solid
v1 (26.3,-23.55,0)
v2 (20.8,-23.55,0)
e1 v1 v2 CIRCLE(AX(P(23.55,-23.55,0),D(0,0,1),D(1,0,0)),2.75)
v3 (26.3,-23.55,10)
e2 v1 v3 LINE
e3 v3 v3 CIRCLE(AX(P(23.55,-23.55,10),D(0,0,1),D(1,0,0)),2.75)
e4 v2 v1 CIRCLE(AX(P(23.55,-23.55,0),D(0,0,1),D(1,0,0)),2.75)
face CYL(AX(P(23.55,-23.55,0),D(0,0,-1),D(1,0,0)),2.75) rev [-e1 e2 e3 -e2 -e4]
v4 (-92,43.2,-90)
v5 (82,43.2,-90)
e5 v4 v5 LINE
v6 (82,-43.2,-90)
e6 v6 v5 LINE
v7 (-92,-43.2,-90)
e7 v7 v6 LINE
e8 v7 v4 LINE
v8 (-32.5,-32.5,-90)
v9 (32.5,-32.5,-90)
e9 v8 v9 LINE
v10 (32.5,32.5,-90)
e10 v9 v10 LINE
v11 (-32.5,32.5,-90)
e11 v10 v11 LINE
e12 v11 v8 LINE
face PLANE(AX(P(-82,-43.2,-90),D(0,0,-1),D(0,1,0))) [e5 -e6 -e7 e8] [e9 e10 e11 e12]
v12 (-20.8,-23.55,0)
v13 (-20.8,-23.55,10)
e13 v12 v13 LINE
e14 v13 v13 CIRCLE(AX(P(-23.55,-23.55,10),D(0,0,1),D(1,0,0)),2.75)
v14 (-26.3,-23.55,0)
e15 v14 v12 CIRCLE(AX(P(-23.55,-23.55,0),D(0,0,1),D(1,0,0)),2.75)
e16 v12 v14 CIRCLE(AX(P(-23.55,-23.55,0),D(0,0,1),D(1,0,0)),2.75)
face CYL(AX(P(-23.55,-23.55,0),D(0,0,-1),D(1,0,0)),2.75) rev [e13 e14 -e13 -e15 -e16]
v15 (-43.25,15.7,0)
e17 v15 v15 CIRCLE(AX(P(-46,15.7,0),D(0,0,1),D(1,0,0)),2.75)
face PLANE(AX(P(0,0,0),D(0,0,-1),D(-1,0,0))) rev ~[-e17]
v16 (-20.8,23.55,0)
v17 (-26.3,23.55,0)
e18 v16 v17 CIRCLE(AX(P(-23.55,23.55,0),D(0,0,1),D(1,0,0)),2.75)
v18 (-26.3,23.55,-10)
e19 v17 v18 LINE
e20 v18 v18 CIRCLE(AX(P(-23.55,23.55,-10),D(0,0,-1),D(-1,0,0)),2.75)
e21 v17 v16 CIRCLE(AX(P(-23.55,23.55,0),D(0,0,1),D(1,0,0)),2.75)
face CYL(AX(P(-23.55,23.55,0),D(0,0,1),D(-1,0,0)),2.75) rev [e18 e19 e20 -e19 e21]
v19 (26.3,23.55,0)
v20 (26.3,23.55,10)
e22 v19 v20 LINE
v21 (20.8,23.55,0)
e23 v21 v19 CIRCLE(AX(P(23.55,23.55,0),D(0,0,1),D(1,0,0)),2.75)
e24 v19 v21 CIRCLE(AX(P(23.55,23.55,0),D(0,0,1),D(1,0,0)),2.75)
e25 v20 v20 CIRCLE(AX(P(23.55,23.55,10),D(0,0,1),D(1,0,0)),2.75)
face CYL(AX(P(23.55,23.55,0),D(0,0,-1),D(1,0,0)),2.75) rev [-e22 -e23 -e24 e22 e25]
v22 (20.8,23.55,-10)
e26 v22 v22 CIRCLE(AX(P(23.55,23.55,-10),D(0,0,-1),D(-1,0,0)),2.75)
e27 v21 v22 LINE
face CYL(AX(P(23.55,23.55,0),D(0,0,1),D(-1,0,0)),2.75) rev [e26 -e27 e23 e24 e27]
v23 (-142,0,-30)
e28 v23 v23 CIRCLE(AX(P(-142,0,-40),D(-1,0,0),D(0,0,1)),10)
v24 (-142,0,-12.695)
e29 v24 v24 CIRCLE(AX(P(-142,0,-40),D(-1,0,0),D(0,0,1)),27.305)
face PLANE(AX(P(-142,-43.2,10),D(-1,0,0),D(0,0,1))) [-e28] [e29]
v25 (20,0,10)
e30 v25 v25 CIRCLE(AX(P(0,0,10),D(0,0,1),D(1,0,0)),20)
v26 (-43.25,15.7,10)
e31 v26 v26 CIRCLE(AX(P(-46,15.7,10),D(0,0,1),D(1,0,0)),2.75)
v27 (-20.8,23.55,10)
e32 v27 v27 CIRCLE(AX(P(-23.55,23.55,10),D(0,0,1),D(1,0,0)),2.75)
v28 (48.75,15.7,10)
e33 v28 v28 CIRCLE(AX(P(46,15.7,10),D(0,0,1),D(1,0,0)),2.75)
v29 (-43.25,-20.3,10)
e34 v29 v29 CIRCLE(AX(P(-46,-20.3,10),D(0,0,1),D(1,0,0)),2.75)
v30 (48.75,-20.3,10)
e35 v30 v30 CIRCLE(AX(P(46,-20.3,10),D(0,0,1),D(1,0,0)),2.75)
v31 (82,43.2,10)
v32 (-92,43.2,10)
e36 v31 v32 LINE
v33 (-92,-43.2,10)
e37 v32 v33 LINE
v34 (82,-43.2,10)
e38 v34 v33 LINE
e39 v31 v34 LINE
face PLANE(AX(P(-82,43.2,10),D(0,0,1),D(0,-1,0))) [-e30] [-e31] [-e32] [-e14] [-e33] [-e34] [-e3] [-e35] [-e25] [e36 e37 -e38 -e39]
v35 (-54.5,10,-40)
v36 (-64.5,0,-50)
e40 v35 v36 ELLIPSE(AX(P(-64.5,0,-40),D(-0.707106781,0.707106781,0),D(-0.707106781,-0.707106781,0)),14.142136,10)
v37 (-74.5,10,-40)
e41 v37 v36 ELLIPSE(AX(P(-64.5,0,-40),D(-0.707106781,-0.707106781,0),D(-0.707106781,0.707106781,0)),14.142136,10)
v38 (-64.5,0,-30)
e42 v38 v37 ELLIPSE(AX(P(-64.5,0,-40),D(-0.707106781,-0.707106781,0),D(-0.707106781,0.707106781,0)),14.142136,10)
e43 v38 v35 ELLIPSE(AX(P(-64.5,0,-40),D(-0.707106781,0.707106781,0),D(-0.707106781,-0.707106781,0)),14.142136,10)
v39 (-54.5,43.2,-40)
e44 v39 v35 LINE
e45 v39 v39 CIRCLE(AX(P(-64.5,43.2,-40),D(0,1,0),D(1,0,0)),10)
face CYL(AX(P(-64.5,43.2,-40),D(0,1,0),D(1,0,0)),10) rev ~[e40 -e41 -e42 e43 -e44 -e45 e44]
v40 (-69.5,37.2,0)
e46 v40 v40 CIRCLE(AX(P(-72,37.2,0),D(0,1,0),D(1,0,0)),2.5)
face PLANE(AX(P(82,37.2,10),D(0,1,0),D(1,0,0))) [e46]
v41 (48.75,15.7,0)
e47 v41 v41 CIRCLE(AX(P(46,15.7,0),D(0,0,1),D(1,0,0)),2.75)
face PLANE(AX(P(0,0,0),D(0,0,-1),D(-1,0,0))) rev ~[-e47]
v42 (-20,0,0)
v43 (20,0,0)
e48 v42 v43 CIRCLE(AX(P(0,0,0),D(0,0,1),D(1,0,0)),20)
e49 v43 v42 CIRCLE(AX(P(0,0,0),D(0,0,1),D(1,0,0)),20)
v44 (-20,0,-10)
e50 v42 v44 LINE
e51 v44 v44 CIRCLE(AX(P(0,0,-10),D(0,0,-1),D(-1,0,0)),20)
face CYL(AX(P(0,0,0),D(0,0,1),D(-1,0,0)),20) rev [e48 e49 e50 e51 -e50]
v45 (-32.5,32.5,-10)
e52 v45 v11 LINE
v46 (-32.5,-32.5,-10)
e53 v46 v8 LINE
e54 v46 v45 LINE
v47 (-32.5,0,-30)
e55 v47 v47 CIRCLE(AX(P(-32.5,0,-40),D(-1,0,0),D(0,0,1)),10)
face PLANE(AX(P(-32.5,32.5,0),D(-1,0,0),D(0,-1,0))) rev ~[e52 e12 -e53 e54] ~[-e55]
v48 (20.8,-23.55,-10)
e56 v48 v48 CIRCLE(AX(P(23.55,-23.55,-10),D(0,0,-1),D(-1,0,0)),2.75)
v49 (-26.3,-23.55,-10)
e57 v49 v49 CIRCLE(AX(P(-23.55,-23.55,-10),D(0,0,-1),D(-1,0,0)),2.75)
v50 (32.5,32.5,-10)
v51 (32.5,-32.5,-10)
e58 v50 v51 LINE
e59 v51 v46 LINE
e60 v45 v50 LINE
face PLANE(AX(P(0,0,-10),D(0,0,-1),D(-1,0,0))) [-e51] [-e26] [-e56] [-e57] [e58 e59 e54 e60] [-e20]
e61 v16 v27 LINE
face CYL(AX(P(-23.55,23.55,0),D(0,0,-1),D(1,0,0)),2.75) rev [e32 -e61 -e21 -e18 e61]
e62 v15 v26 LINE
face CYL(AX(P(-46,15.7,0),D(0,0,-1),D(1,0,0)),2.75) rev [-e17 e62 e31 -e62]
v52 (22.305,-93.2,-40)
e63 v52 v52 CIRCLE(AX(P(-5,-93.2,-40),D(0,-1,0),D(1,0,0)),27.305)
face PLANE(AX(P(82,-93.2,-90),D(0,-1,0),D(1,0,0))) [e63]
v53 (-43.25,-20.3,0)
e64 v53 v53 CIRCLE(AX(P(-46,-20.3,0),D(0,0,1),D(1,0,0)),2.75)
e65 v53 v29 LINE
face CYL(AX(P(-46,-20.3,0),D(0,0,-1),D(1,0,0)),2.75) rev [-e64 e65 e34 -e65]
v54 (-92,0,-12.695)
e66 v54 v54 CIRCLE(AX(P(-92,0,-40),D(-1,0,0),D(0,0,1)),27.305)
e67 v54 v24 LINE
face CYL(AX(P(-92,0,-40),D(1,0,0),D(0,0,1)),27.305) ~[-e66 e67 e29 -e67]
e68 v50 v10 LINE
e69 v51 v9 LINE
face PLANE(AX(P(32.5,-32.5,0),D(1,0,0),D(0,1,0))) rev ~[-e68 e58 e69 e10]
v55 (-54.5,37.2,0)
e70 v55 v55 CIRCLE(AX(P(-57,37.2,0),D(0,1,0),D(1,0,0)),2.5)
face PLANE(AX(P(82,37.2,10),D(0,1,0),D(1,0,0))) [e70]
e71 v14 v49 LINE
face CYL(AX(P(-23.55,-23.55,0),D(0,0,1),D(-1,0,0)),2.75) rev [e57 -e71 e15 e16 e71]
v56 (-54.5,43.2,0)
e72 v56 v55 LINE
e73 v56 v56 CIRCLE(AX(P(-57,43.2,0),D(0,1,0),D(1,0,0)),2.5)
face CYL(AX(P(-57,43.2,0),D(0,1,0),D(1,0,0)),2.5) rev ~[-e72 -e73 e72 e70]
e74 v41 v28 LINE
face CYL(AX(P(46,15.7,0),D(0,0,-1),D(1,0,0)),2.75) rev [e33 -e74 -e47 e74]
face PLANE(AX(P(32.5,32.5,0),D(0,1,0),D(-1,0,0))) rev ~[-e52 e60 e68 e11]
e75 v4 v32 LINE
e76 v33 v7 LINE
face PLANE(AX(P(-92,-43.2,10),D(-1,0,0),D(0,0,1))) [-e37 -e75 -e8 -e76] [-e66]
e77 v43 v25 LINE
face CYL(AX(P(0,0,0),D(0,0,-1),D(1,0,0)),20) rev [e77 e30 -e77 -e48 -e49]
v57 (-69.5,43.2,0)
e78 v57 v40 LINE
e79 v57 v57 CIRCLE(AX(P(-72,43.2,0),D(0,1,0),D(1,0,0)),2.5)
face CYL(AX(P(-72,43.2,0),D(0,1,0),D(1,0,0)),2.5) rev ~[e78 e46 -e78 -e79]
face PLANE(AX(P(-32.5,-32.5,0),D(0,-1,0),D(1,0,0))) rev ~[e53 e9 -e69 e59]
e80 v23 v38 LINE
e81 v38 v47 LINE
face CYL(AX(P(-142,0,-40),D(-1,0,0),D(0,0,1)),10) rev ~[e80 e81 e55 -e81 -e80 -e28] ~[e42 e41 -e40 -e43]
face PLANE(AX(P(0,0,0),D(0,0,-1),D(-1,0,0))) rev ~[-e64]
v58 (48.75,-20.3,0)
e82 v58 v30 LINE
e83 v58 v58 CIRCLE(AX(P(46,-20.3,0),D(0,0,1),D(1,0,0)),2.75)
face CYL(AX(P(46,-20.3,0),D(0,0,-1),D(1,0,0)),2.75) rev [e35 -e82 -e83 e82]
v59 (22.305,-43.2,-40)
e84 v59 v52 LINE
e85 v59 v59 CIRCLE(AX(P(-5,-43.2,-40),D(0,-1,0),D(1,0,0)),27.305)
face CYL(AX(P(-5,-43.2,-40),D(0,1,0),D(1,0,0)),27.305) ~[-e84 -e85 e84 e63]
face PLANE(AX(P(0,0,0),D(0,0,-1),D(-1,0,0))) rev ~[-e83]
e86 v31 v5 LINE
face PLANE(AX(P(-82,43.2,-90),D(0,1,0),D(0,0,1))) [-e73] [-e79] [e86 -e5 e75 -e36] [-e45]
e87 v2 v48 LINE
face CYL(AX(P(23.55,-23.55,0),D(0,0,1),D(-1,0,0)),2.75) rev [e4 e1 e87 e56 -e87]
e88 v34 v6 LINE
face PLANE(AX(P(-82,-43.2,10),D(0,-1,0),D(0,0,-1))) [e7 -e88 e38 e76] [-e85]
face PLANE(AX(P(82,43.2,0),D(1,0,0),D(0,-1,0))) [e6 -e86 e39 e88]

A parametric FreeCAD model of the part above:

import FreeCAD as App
import Part
import Sketcher
from FreeCAD import Vector

doc = App.newDocument("Part")
body = doc.addObject("PartDesign::Body", "Body")

# Sketch on XY plane
sketch1 = doc.addObject("Sketcher::SketchObject", "Sketch")
body.addObject(sketch1)
sketch1.AttachmentSupport = (doc.XY_Plane, [""])
sketch1.MapMode = "FlatFace"
sketch1.addGeometry(Part.LineSegment(Vector(82, 43.2, 0), Vector(-82, 43.2, 0)), False)
sketch1.addGeometry(Part.LineSegment(Vector(-82, 43.2, 0), Vector(-82, -43.2, 0)), False)
sketch1.addGeometry(Part.LineSegment(Vector(-82, -43.2, 0), Vector(82, -43.2, 0)), False)
sketch1.addGeometry(Part.LineSegment(Vector(82, -43.2, 0), Vector(82, 43.2, 0)), False)
sketch1.addGeometry(Part.Circle(Vector(-23.6, -23.6, 0), Vector(0, 0, 1), 2.8), False)
sketch1.addGeometry(Part.Circle(Vector(-46, -20.3, 0), Vector(0, 0, 1), 2.8), False)
sketch1.addGeometry(Part.Circle(Vector(23.6, -23.6, 0), Vector(0, 0, 1), 2.8), False)
sketch1.addGeometry(Part.Circle(Vector(46, -20.3, 0), Vector(0, 0, 1), 2.8), False)
sketch1.addGeometry(Part.Circle(Vector(-46, 15.7, 0), Vector(0, 0, 1), 2.8), False)
sketch1.addGeometry(Part.Circle(Vector(-23.6, 23.6, 0), Vector(0, 0, 1), 2.8), False)
sketch1.addGeometry(Part.Circle(Vector(0, 0, 0), Vector(0, 0, 1), 20), False)
sketch1.addGeometry(Part.Circle(Vector(46, 15.7, 0), Vector(0, 0, 1), 2.8), False)
sketch1.addGeometry(Part.Circle(Vector(23.6, 23.6, 0), Vector(0, 0, 1), 2.8), False)
sketch1.addConstraint(Sketcher.Constraint("Coincident", 0, 2, 1, 1))
sketch1.addConstraint(Sketcher.Constraint("Coincident", 1, 2, 2, 1))
sketch1.addConstraint(Sketcher.Constraint("Coincident", 2, 2, 3, 1))
sketch1.addConstraint(Sketcher.Constraint("Coincident", 3, 2, 0, 1))
sketch1.addConstraint(Sketcher.Constraint("Horizontal", 0))
sketch1.addConstraint(Sketcher.Constraint("Vertical", 1))
sketch1.addConstraint(Sketcher.Constraint("Horizontal", 2))
sketch1.addConstraint(Sketcher.Constraint("Vertical", 3))
sketch1.addConstraint(Sketcher.Constraint("Coincident", 10, 3, -1, 1))
sketch1.addConstraint(Sketcher.Constraint("Equal", 4, 5))
sketch1.addConstraint(Sketcher.Constraint("Equal", 5, 6))
sketch1.addConstraint(Sketcher.Constraint("Equal", 6, 7))
sketch1.addConstraint(Sketcher.Constraint("Equal", 7, 8))
sketch1.addConstraint(Sketcher.Constraint("Equal", 8, 9))
sketch1.addConstraint(Sketcher.Constraint("Equal", 9, 11))
sketch1.addConstraint(Sketcher.Constraint("Equal", 11, 12))
sketch1.addConstraint(Sketcher.Constraint("Symmetric", 6, 3, 9, 3, -1, 1))
sketch1.addConstraint(Sketcher.Constraint("Symmetric", 4, 3, 12, 3, -1, 1))
sketch1.addConstraint(Sketcher.Constraint("Symmetric", 0, 2, 2, 2, -1, 1))
sketch1.addConstraint(Sketcher.Constraint("Symmetric", 4, 3, 6, 3, -2))
sketch1.addConstraint(Sketcher.Constraint("Symmetric", 5, 3, 7, 3, -2))
sketch1.addConstraint(Sketcher.Constraint("Symmetric", 8, 3, 11, 3, -2))
sketch1.addConstraint(Sketcher.Constraint("Vertical", 5, 3, 8, 3))
sketch1.addConstraint(Sketcher.Constraint("Diameter", 10, 40.0))
sketch1.addConstraint(Sketcher.Constraint("Diameter", 4, 5.5))
sketch1.addConstraint(Sketcher.Constraint("DistanceX", 5, 3, -1, 1, 46.0))
sketch1.addConstraint(Sketcher.Constraint("DistanceY", 5, 3, 8, 3, 36.0))
sketch1.addConstraint(Sketcher.Constraint("DistanceX", 0, 2, 8, 3, 36.0))
sketch1.addConstraint(Sketcher.Constraint("DistanceX", 4, 3, 6, 3, 47.1))
sketch1.addConstraint(Sketcher.Constraint("DistanceY", 4, 3, 9, 3, 47.1))
sketch1.addConstraint(Sketcher.Constraint("DistanceY", 1, 2, 1, 1, 86.4))
sketch1.addConstraint(Sketcher.Constraint("DistanceY", 5, 3, -1, 1, 20.3))
pad1 = doc.addObject("PartDesign::Pad", "Pad")
body.addObject(pad1)
pad1.Profile = sketch1
pad1.Length = 10

# Sketch on XY plane
sketch2 = doc.addObject("Sketcher::SketchObject", "Sketch001")
body.addObject(sketch2)
sketch2.AttachmentSupport = (doc.XY_Plane, [""])
sketch2.MapMode = "FlatFace"
sketch2.addGeometry(Part.LineSegment(Vector(82, 43, 0), Vector(82, -43, 0)), False)
sketch2.addGeometry(Part.LineSegment(Vector(82, -43, 0), Vector(-82, -43, 0)), False)
sketch2.addGeometry(Part.LineSegment(Vector(-82, -43, 0), Vector(-82, 43, 0)), False)
sketch2.addGeometry(Part.LineSegment(Vector(-82, 43, 0), Vector(82, 43, 0)), False)
sketch2.addGeometry(Part.LineSegment(Vector(-32, 32, 0), Vector(-32, -32, 0)), False)
sketch2.addGeometry(Part.LineSegment(Vector(-32, -32, 0), Vector(32, -32, 0)), False)
sketch2.addGeometry(Part.LineSegment(Vector(32, -32, 0), Vector(32, 32, 0)), False)
sketch2.addGeometry(Part.LineSegment(Vector(32, 32, 0), Vector(-32, 32, 0)), False)
sketch2.addConstraint(Sketcher.Constraint("Coincident", 0, 2, 1, 1))
sketch2.addConstraint(Sketcher.Constraint("Coincident", 1, 2, 2, 1))
sketch2.addConstraint(Sketcher.Constraint("Coincident", 2, 2, 3, 1))
sketch2.addConstraint(Sketcher.Constraint("Coincident", 3, 2, 0, 1))
sketch2.addConstraint(Sketcher.Constraint("Coincident", 4, 2, 5, 1))
sketch2.addConstraint(Sketcher.Constraint("Coincident", 5, 2, 6, 1))
sketch2.addConstraint(Sketcher.Constraint("Coincident", 6, 2, 7, 1))
sketch2.addConstraint(Sketcher.Constraint("Coincident", 7, 2, 4, 1))
sketch2.addConstraint(Sketcher.Constraint("Vertical", 0))
sketch2.addConstraint(Sketcher.Constraint("Horizontal", 1))
sketch2.addConstraint(Sketcher.Constraint("Vertical", 2))
sketch2.addConstraint(Sketcher.Constraint("Horizontal", 3))
sketch2.addConstraint(Sketcher.Constraint("Vertical", 4))
sketch2.addConstraint(Sketcher.Constraint("Horizontal", 5))
sketch2.addConstraint(Sketcher.Constraint("Vertical", 6))
sketch2.addConstraint(Sketcher.Constraint("Horizontal", 7))
sketch2.addConstraint(Sketcher.Constraint("Symmetric", 0, 2, 2, 2, -1, 1))
sketch2.addConstraint(Sketcher.Constraint("Symmetric", 4, 2, 6, 2, -1, 1))
sketch2.addConstraint(Sketcher.Constraint("Equal", 7, 4))
sketch2.addConstraint(Sketcher.Constraint("DistanceX", 5, 1, 5, 2, 65.0))
sketch2.addConstraint(Sketcher.Constraint("DistanceX", 1, 2, 1, 1, 164.0))
sketch2.addConstraint(Sketcher.Constraint("DistanceY", 0, 2, 0, 1, 86.4))
pad2 = doc.addObject("PartDesign::Pad", "Pad001")
body.addObject(pad2)
pad2.Profile = sketch2
pad2.Length = 90
pad2.Reversed = True

# Sketch on XY plane
sketch3 = doc.addObject("Sketcher::SketchObject", "Sketch002")
body.addObject(sketch3)
sketch3.AttachmentSupport = (doc.XY_Plane, [""])
sketch3.MapMode = "FlatFace"
sketch3.addGeometry(Part.LineSegment(Vector(32.5, -32.5, 0), Vector(-32.5, -32.5, 0)), False)
sketch3.addGeometry(Part.LineSegment(Vector(-32.5, -32.5, 0), Vector(-32.5, 32.5, 0)), False)
sketch3.addGeometry(Part.LineSegment(Vector(-32.5, 32.5, 0), Vector(32.5, 32.5, 0)), False)
sketch3.addGeometry(Part.LineSegment(Vector(32.5, 32.5, 0), Vector(32.5, -32.5, 0)), False)
sketch3.addGeometry(Part.Circle(Vector(23.6, -23.6, 0), Vector(0, 0, 1), 2.8), False)
sketch3.addGeometry(Part.Circle(Vector(-23.6, -23.6, 0), Vector(0, 0, 1), 2.8), False)
sketch3.addGeometry(Part.Circle(Vector(23.6, 23.6, 0), Vector(0, 0, 1), 2.8), False)
sketch3.addGeometry(Part.Circle(Vector(0, 0, 0), Vector(0, 0, 1), 20), False)
sketch3.addGeometry(Part.Circle(Vector(-23.6, 23.6, 0), Vector(0, 0, 1), 2.8), False)
sketch3.addConstraint(Sketcher.Constraint("Coincident", 0, 2, 1, 1))
sketch3.addConstraint(Sketcher.Constraint("Coincident", 1, 2, 2, 1))
sketch3.addConstraint(Sketcher.Constraint("Coincident", 2, 2, 3, 1))
sketch3.addConstraint(Sketcher.Constraint("Coincident", 3, 2, 0, 1))
sketch3.addConstraint(Sketcher.Constraint("Horizontal", 0))
sketch3.addConstraint(Sketcher.Constraint("Vertical", 1))
sketch3.addConstraint(Sketcher.Constraint("Horizontal", 2))
sketch3.addConstraint(Sketcher.Constraint("Vertical", 3))
sketch3.addConstraint(Sketcher.Constraint("Coincident", 7, 3, -1, 1))
sketch3.addConstraint(Sketcher.Constraint("Equal", 4, 5))
sketch3.addConstraint(Sketcher.Constraint("Equal", 5, 6))
sketch3.addConstraint(Sketcher.Constraint("Equal", 6, 8))
sketch3.addConstraint(Sketcher.Constraint("Symmetric", 5, 3, 6, 3, -1, 1))
sketch3.addConstraint(Sketcher.Constraint("Symmetric", 4, 3, 8, 3, -1, 1))
sketch3.addConstraint(Sketcher.Constraint("Symmetric", 0, 2, 2, 2, -1, 1))
sketch3.addConstraint(Sketcher.Constraint("Symmetric", 4, 3, 5, 3, -2))
sketch3.addConstraint(Sketcher.Constraint("Equal", 2, 1))
sketch3.addConstraint(Sketcher.Constraint("Diameter", 7, 40.0))
sketch3.addConstraint(Sketcher.Constraint("Diameter", 4, 5.5))
sketch3.addConstraint(Sketcher.Constraint("DistanceX", 0, 2, 0, 1, 65.0))
sketch3.addConstraint(Sketcher.Constraint("DistanceX", 5, 3, 4, 3, 47.1))
sketch3.addConstraint(Sketcher.Constraint("DistanceY", 4, 3, 6, 3, 47.1))
pad3 = doc.addObject("PartDesign::Pad", "Pad002")
body.addObject(pad3)
pad3.Profile = sketch3
pad3.Length = 10
pad3.Reversed = True

# Sketch on YZ plane
sketch4 = doc.addObject("Sketcher::SketchObject", "Sketch003")
body.addObject(sketch4)
sketch4.AttachmentSupport = (doc.YZ_Plane, [""])
sketch4.MapMode = "FlatFace"
sketch4.AttachmentOffset = App.Placement(Vector(0, 0, -82), App.Rotation())
sketch4.addGeometry(Part.LineSegment(Vector(-43, -90, 0), Vector(-43, 10, 0)), False)
sketch4.addGeometry(Part.LineSegment(Vector(-43, 10, 0), Vector(43, 10, 0)), False)
sketch4.addGeometry(Part.LineSegment(Vector(43, 10, 0), Vector(43, -90, 0)), False)
sketch4.addGeometry(Part.LineSegment(Vector(43, -90, 0), Vector(-43, -90, 0)), False)
sketch4.addConstraint(Sketcher.Constraint("Coincident", 0, 2, 1, 1))
sketch4.addConstraint(Sketcher.Constraint("Coincident", 1, 2, 2, 1))
sketch4.addConstraint(Sketcher.Constraint("Coincident", 2, 2, 3, 1))
sketch4.addConstraint(Sketcher.Constraint("Coincident", 3, 2, 0, 1))
sketch4.addConstraint(Sketcher.Constraint("Vertical", 0))
sketch4.addConstraint(Sketcher.Constraint("Horizontal", 1))
sketch4.addConstraint(Sketcher.Constraint("Vertical", 2))
sketch4.addConstraint(Sketcher.Constraint("Horizontal", 3))
sketch4.addConstraint(Sketcher.Constraint("DistanceY", 0, 1, 0, 2, 100.0))
sketch4.addConstraint(Sketcher.Constraint("DistanceX", 1, 1, 1, 2, 86.4))
sketch4.addConstraint(Sketcher.Constraint("DistanceY", -1, 1, 0, 2, 10.0))
sketch4.addConstraint(Sketcher.Constraint("DistanceX", 0, 2, -1, 1, 43.2))
pad4 = doc.addObject("PartDesign::Pad", "Pad003")
body.addObject(pad4)
pad4.Profile = sketch4
pad4.Length = 10
pad4.Reversed = True

# Sketch on XZ plane
sketch5 = doc.addObject("Sketcher::SketchObject", "Sketch004")
body.addObject(sketch5)
sketch5.AttachmentSupport = (doc.XZ_Plane, [""])
sketch5.MapMode = "FlatFace"
sketch5.AttachmentOffset = App.Placement(Vector(0, 0, 43.2), App.Rotation())
sketch5.addGeometry(Part.Circle(Vector(-5, -40, 0), Vector(0, 0, 1), 27), False)
sketch5.addConstraint(Sketcher.Constraint("Diameter", 0, 54.61))
sketch5.addConstraint(Sketcher.Constraint("DistanceX", 0, 3, -1, 1, 5.0))
sketch5.addConstraint(Sketcher.Constraint("DistanceY", 0, 3, -1, 1, 40.0))
pad5 = doc.addObject("PartDesign::Pad", "Pad004")
body.addObject(pad5)
pad5.Profile = sketch5
pad5.Length = 50

# Sketch on YZ plane
sketch6 = doc.addObject("Sketcher::SketchObject", "Sketch005")
body.addObject(sketch6)
sketch6.AttachmentSupport = (doc.YZ_Plane, [""])
sketch6.MapMode = "FlatFace"
sketch6.AttachmentOffset = App.Placement(Vector(0, 0, -92), App.Rotation())
sketch6.addGeometry(Part.Circle(Vector(0, -40, 0), Vector(0, 0, 1), 27), False)
sketch6.addConstraint(Sketcher.Constraint("PointOnObject", 0, 3, -2))
sketch6.addConstraint(Sketcher.Constraint("Diameter", 0, 54.61))
sketch6.addConstraint(Sketcher.Constraint("DistanceY", 0, 3, -1, 1, 40.0))
pad6 = doc.addObject("PartDesign::Pad", "Pad005")
body.addObject(pad6)
pad6.Profile = sketch6
pad6.Length = 50
pad6.Reversed = True

# Sketch on YZ plane
sketch7 = doc.addObject("Sketcher::SketchObject", "Sketch006")
body.addObject(sketch7)
sketch7.AttachmentSupport = (doc.YZ_Plane, [""])
sketch7.MapMode = "FlatFace"
sketch7.AttachmentOffset = App.Placement(Vector(0, 0, -142), App.Rotation())
sketch7.addGeometry(Part.Circle(Vector(0, -40, 0), Vector(0, 0, 1), 10), False)
sketch7.addConstraint(Sketcher.Constraint("PointOnObject", 0, 3, -2))
sketch7.addConstraint(Sketcher.Constraint("Diameter", 0, 20.0))
sketch7.addConstraint(Sketcher.Constraint("DistanceY", 0, 3, -1, 1, 40.0))
pocket1 = doc.addObject("PartDesign::Pocket", "Pocket")
body.addObject(pocket1)
pocket1.Profile = sketch7
pocket1.Length = 109.5
pocket1.Reversed = True

# Sketch on XZ plane
sketch8 = doc.addObject("Sketcher::SketchObject", "Sketch007")
body.addObject(sketch8)
sketch8.AttachmentSupport = (doc.XZ_Plane, [""])
sketch8.MapMode = "FlatFace"
sketch8.AttachmentOffset = App.Placement(Vector(0, 0, -43.2), App.Rotation())
sketch8.addGeometry(Part.Circle(Vector(-57, 0, 0), Vector(0, 0, 1), 2.5), False)
sketch8.addGeometry(Part.Circle(Vector(-72, 0, 0), Vector(0, 0, 1), 2.5), False)
sketch8.addConstraint(Sketcher.Constraint("Equal", 0, 1))
sketch8.addConstraint(Sketcher.Constraint("PointOnObject", 0, 3, -1))
sketch8.addConstraint(Sketcher.Constraint("PointOnObject", 1, 3, -1))
sketch8.addConstraint(Sketcher.Constraint("Diameter", 0, 5.0))
sketch8.addConstraint(Sketcher.Constraint("DistanceX", 1, 3, 0, 3, 15.0))
sketch8.addConstraint(Sketcher.Constraint("DistanceX", 0, 3, -1, 1, 57.0))
pocket2 = doc.addObject("PartDesign::Pocket", "Pocket001")
body.addObject(pocket2)
pocket2.Profile = sketch8
pocket2.Length = 6
pocket2.Reversed = True

# Sketch on XZ plane
sketch9 = doc.addObject("Sketcher::SketchObject", "Sketch008")
body.addObject(sketch9)
sketch9.AttachmentSupport = (doc.XZ_Plane, [""])
sketch9.MapMode = "FlatFace"
sketch9.AttachmentOffset = App.Placement(Vector(0, 0, -43.2), App.Rotation())
sketch9.addGeometry(Part.Circle(Vector(-64, -40, 0), Vector(0, 0, 1), 10), False)
sketch9.addConstraint(Sketcher.Constraint("Diameter", 0, 20.0))
sketch9.addConstraint(Sketcher.Constraint("DistanceY", 0, 3, -1, 1, 40.0))
sketch9.addConstraint(Sketcher.Constraint("DistanceX", 0, 3, -1, 1, 64.5))
pocket3 = doc.addObject("PartDesign::Pocket", "Pocket002")
body.addObject(pocket3)
pocket3.Profile = sketch9
pocket3.Length = 43.2
pocket3.Reversed = True

doc.recompute()
